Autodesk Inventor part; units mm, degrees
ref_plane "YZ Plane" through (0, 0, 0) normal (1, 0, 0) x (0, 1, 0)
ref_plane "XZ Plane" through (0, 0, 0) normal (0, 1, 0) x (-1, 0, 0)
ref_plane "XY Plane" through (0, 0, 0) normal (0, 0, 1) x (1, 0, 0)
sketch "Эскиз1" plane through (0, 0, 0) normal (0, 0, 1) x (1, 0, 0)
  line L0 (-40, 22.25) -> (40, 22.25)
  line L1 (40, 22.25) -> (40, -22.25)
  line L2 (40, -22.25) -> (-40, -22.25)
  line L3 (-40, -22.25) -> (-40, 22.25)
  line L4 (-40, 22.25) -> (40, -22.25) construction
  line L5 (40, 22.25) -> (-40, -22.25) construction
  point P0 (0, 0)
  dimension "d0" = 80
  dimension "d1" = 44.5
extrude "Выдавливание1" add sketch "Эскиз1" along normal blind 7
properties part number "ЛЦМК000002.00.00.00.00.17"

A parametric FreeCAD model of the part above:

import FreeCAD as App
import Part
import Sketcher

V = App.Vector
Q = App.Units.Quantity

doc = App.newDocument("Part")
body = doc.addObject("PartDesign::Body", "Body")

# Sketch on XY plane
sketch1 = body.newObject("Sketcher::SketchObject", "Sketch")
sketch1.AttachmentSupport = (doc.getObject("XY_Plane"), [""])
sketch1.MapMode = "FlatFace"
sketch1.addGeometry([
    Part.LineSegment(V(40, 22, 0), V(-40, 22, 0)),
    Part.LineSegment(V(-40, 22, 0), V(-40, -22, 0)),
    Part.LineSegment(V(-40, -22, 0), V(40, -22, 0)),
    Part.LineSegment(V(40, -22, 0), V(40, 22, 0)),
], False)
sketch1.addConstraint([
    Sketcher.Constraint("Coincident", 0, 2, 1, 1),
    Sketcher.Constraint("Coincident", 1, 2, 2, 1),
    Sketcher.Constraint("Coincident", 2, 2, 3, 1),
    Sketcher.Constraint("Coincident", 3, 2, 0, 1),
    Sketcher.Constraint("Horizontal", 0),
    Sketcher.Constraint("Vertical", 1),
    Sketcher.Constraint("Horizontal", 2),
    Sketcher.Constraint("Vertical", 3),
    Sketcher.Constraint("Symmetric", 0, 2, 2, 2, -1, 1),
    Sketcher.Constraint("DistanceX", 0, 2, 0, 1, Q("80 mm")),
    Sketcher.Constraint("DistanceY", 1, 2, 1, 1, Q("44.5 mm")),
])
pad1 = body.newObject("PartDesign::Pad", "Pad")
pad1.Profile = sketch1
pad1.Length = 7

doc.recompute()
